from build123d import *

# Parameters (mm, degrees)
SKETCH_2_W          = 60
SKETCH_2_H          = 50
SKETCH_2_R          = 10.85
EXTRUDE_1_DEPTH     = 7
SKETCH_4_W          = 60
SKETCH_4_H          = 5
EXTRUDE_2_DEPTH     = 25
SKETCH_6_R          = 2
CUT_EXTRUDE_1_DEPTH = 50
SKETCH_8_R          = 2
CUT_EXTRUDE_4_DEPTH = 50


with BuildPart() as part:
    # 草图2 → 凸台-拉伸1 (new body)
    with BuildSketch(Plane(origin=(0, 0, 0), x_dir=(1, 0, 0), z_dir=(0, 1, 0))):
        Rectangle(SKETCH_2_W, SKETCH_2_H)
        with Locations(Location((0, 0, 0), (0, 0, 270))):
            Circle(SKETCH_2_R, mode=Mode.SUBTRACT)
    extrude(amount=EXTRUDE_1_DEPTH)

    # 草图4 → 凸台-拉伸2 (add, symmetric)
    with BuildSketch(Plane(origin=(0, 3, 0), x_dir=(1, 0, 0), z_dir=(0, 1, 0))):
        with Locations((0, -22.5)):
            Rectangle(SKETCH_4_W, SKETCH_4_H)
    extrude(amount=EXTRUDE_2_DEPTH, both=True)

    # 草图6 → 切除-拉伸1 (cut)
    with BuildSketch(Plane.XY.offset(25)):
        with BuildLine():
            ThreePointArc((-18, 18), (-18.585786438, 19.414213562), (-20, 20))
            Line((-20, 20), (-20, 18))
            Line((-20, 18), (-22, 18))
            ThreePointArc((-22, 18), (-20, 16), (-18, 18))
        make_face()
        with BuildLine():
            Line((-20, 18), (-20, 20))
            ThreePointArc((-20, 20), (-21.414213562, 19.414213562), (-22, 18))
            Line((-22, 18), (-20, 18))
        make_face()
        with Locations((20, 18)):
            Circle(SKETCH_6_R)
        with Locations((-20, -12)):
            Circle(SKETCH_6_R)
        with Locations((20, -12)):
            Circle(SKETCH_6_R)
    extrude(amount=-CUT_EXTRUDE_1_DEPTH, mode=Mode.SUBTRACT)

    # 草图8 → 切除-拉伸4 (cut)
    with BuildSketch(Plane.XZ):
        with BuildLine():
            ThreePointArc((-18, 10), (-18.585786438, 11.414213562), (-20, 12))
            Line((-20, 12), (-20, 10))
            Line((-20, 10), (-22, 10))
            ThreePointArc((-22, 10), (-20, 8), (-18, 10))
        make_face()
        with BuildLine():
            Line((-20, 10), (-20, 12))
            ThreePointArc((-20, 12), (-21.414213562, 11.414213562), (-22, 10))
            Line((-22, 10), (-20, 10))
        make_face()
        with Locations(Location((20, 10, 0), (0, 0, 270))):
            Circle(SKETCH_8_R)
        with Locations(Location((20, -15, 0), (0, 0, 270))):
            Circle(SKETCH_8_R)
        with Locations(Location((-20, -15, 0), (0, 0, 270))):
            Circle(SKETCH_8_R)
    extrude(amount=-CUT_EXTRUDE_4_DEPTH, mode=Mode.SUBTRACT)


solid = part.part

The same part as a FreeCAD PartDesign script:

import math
import FreeCAD as App
import Part
import Sketcher
from FreeCAD import Vector
Q = App.Units.Quantity

doc = App.newDocument("Part")
body = doc.addObject("PartDesign::Body", "Body")

sketch1 = doc.addObject("Sketcher::SketchObject", "Sketch")
body.addObject(sketch1)
sketch1.AttachmentSupport = (doc.XZ_Plane, [""])
sketch1.MapMode = "FlatFace"
sketch1.addGeometry([
    Part.LineSegment(Vector(-30, -25, 0), Vector(-30, 25, 0)),
    Part.LineSegment(Vector(-30, 25, 0), Vector(30, 25, 0)),
    Part.LineSegment(Vector(30, 25, 0), Vector(30, -25, 0)),
    Part.LineSegment(Vector(30, -25, 0), Vector(-30, -25, 0)),
    Part.Circle(Vector(0, 0, 0), Vector(0, 0, 1), 11),
], False)
sketch1.addConstraint([
    Sketcher.Constraint("Coincident", 0, 2, 1, 1),
    Sketcher.Constraint("Coincident", 1, 2, 2, 1),
    Sketcher.Constraint("Coincident", 2, 2, 3, 1),
    Sketcher.Constraint("Coincident", 3, 2, 0, 1),
    Sketcher.Constraint("Vertical", 0),
    Sketcher.Constraint("Horizontal", 1),
    Sketcher.Constraint("Vertical", 2),
    Sketcher.Constraint("Horizontal", 3),
    Sketcher.Constraint("Coincident", 4, 3, -1, 1),
    Sketcher.Constraint("Symmetric", 0, 2, 2, 2, -1, 1),
    Sketcher.Constraint("Diameter", 4, Q("21.7 mm")),
    Sketcher.Constraint("DistanceX", 1, 1, 1, 2, Q("60 mm")),
    Sketcher.Constraint("DistanceY", 0, 1, 0, 2, Q("50 mm")),
])
pad1 = doc.addObject("PartDesign::Pad", "Pad")
body.addObject(pad1)
pad1.Profile = sketch1
pad1.Length = 7
pad1.Reversed = True

sketch2 = doc.addObject("Sketcher::SketchObject", "Sketch001")
body.addObject(sketch2)
sketch2.AttachmentSupport = (doc.XZ_Plane, [""])
sketch2.MapMode = "FlatFace"
sketch2.AttachmentOffset = App.Placement(Vector(0, 0, -3), App.Rotation())
sketch2.addGeometry([
    Part.LineSegment(Vector(-30, 20, 0), Vector(-30, 25, 0)),
    Part.LineSegment(Vector(-30, 25, 0), Vector(30, 25, 0)),
    Part.LineSegment(Vector(30, 25, 0), Vector(30, 20, 0)),
    Part.LineSegment(Vector(30, 20, 0), Vector(-30, 20, 0)),
], False)
sketch2.addConstraint([
    Sketcher.Constraint("Coincident", 0, 2, 1, 1),
    Sketcher.Constraint("Coincident", 1, 2, 2, 1),
    Sketcher.Constraint("Coincident", 2, 2, 3, 1),
    Sketcher.Constraint("Coincident", 3, 2, 0, 1),
    Sketcher.Constraint("Vertical", 0),
    Sketcher.Constraint("Horizontal", 1),
    Sketcher.Constraint("Vertical", 2),
    Sketcher.Constraint("Horizontal", 3),
    Sketcher.Constraint("DistanceX", 1, 1, 1, 2, Q("60 mm")),
    Sketcher.Constraint("DistanceY", 0, 1, 0, 2, Q("5 mm")),
    Sketcher.Constraint("DistanceX", 0, 2, -1, 1, Q("30 mm")),
    Sketcher.Constraint("DistanceY", -1, 1, 0, 2, Q("25 mm")),
])
pad2 = doc.addObject("PartDesign::Pad", "Pad001")
body.addObject(pad2)
pad2.Profile = sketch2
pad2.Length = 50
pad2.Midplane = True

sketch3 = doc.addObject("Sketcher::SketchObject", "Sketch002")
body.addObject(sketch3)
sketch3.AttachmentSupport = (doc.XY_Plane, [""])
sketch3.MapMode = "FlatFace"
sketch3.AttachmentOffset = App.Placement(Vector(0, 0, 25), App.Rotation())
sketch3.addGeometry([
    Part.ArcOfCircle(Part.Circle(Vector(-20, 18, 0), Vector(0, 0, 1), 2), math.radians(0), math.radians(90)),
    Part.ArcOfCircle(Part.Circle(Vector(-20, 18, 0), Vector(0, 0, 1), 2), math.radians(90), math.radians(180)),
    Part.ArcOfCircle(Part.Circle(Vector(-20, 18, 0), Vector(0, 0, 1), 2), math.radians(180), math.radians(360)),
    Part.Circle(Vector(20, 18, 0), Vector(0, 0, 1), 2),
    Part.Circle(Vector(-20, -12, 0), Vector(0, 0, 1), 2),
    Part.Circle(Vector(20, -12, 0), Vector(0, 0, 1), 2),
], False)
sketch3.addConstraint([
    Sketcher.Constraint("Tangent", 0, 2, 1, 1),
    Sketcher.Constraint("Tangent", 1, 2, 2, 1),
    Sketcher.Constraint("Tangent", 2, 2, 0, 1),
    Sketcher.Constraint("Equal", 2, 3),
    Sketcher.Constraint("Equal", 3, 4),
    Sketcher.Constraint("Equal", 4, 5),
    Sketcher.Constraint("Symmetric", 0, 3, 3, 3, -2),
    Sketcher.Constraint("Symmetric", 4, 3, 5, 3, -2),
    Sketcher.Constraint("Horizontal", 3, 3, 1, 2),
    Sketcher.Constraint("Horizontal", 1, 2, 2, 2),
    Sketcher.Constraint("Vertical", 2, 3, 4, 3),
    Sketcher.Constraint("Vertical", 4, 3, 0, 2),
    Sketcher.Constraint("Diameter", 3, Q("4 mm")),
    Sketcher.Constraint("DistanceX", 0, 3, -1, 1, Q("20 mm")),
    Sketcher.Constraint("DistanceY", -1, 1, 0, 3, Q("18 mm")),
    Sketcher.Constraint("DistanceY", 4, 3, -1, 1, Q("12 mm")),
])
pocket1 = doc.addObject("PartDesign::Pocket", "Pocket")
body.addObject(pocket1)
pocket1.Profile = sketch3
pocket1.Length = 50

sketch4 = doc.addObject("Sketcher::SketchObject", "Sketch003")
body.addObject(sketch4)
sketch4.AttachmentSupport = (doc.XZ_Plane, [""])
sketch4.MapMode = "FlatFace"
sketch4.addGeometry([
    Part.ArcOfCircle(Part.Circle(Vector(-20, 10, 0), Vector(0, 0, 1), 2), math.radians(0), math.radians(90)),
    Part.ArcOfCircle(Part.Circle(Vector(-20, 10, 0), Vector(0, 0, 1), 2), math.radians(90), math.radians(180)),
    Part.ArcOfCircle(Part.Circle(Vector(-20, 10, 0), Vector(0, 0, 1), 2), math.radians(180), math.radians(360)),
    Part.Circle(Vector(20, 10, 0), Vector(0, 0, 1), 2),
    Part.Circle(Vector(20, -15, 0), Vector(0, 0, 1), 2),
    Part.Circle(Vector(-20, -15, 0), Vector(0, 0, 1), 2),
], False)
sketch4.addConstraint([
    Sketcher.Constraint("Tangent", 0, 2, 1, 1),
    Sketcher.Constraint("Tangent", 1, 2, 2, 1),
    Sketcher.Constraint("Tangent", 2, 2, 0, 1),
    Sketcher.Constraint("Equal", 2, 3),
    Sketcher.Constraint("Equal", 3, 4),
    Sketcher.Constraint("Equal", 4, 5),
    Sketcher.Constraint("Symmetric", 0, 3, 3, 3, -2),
    Sketcher.Constraint("Symmetric", 4, 3, 5, 3, -2),
    Sketcher.Constraint("Horizontal", 3, 3, 1, 2),
    Sketcher.Constraint("Horizontal", 1, 2, 2, 2),
    Sketcher.Constraint("Vertical", 3, 3, 4, 3),
    Sketcher.Constraint("Vertical", 5, 3, 0, 2),
    Sketcher.Constraint("Diameter", 3, Q("4 mm")),
    Sketcher.Constraint("DistanceX", 0, 3, -1, 1, Q("20 mm")),
    Sketcher.Constraint("DistanceY", -1, 1, 0, 3, Q("10 mm")),
    Sketcher.Constraint("DistanceY", 4, 3, -1, 1, Q("15 mm")),
])
pocket2 = doc.addObject("PartDesign::Pocket", "Pocket001")
body.addObject(pocket2)
pocket2.Profile = sketch4
pocket2.Length = 50

doc.recompute()
